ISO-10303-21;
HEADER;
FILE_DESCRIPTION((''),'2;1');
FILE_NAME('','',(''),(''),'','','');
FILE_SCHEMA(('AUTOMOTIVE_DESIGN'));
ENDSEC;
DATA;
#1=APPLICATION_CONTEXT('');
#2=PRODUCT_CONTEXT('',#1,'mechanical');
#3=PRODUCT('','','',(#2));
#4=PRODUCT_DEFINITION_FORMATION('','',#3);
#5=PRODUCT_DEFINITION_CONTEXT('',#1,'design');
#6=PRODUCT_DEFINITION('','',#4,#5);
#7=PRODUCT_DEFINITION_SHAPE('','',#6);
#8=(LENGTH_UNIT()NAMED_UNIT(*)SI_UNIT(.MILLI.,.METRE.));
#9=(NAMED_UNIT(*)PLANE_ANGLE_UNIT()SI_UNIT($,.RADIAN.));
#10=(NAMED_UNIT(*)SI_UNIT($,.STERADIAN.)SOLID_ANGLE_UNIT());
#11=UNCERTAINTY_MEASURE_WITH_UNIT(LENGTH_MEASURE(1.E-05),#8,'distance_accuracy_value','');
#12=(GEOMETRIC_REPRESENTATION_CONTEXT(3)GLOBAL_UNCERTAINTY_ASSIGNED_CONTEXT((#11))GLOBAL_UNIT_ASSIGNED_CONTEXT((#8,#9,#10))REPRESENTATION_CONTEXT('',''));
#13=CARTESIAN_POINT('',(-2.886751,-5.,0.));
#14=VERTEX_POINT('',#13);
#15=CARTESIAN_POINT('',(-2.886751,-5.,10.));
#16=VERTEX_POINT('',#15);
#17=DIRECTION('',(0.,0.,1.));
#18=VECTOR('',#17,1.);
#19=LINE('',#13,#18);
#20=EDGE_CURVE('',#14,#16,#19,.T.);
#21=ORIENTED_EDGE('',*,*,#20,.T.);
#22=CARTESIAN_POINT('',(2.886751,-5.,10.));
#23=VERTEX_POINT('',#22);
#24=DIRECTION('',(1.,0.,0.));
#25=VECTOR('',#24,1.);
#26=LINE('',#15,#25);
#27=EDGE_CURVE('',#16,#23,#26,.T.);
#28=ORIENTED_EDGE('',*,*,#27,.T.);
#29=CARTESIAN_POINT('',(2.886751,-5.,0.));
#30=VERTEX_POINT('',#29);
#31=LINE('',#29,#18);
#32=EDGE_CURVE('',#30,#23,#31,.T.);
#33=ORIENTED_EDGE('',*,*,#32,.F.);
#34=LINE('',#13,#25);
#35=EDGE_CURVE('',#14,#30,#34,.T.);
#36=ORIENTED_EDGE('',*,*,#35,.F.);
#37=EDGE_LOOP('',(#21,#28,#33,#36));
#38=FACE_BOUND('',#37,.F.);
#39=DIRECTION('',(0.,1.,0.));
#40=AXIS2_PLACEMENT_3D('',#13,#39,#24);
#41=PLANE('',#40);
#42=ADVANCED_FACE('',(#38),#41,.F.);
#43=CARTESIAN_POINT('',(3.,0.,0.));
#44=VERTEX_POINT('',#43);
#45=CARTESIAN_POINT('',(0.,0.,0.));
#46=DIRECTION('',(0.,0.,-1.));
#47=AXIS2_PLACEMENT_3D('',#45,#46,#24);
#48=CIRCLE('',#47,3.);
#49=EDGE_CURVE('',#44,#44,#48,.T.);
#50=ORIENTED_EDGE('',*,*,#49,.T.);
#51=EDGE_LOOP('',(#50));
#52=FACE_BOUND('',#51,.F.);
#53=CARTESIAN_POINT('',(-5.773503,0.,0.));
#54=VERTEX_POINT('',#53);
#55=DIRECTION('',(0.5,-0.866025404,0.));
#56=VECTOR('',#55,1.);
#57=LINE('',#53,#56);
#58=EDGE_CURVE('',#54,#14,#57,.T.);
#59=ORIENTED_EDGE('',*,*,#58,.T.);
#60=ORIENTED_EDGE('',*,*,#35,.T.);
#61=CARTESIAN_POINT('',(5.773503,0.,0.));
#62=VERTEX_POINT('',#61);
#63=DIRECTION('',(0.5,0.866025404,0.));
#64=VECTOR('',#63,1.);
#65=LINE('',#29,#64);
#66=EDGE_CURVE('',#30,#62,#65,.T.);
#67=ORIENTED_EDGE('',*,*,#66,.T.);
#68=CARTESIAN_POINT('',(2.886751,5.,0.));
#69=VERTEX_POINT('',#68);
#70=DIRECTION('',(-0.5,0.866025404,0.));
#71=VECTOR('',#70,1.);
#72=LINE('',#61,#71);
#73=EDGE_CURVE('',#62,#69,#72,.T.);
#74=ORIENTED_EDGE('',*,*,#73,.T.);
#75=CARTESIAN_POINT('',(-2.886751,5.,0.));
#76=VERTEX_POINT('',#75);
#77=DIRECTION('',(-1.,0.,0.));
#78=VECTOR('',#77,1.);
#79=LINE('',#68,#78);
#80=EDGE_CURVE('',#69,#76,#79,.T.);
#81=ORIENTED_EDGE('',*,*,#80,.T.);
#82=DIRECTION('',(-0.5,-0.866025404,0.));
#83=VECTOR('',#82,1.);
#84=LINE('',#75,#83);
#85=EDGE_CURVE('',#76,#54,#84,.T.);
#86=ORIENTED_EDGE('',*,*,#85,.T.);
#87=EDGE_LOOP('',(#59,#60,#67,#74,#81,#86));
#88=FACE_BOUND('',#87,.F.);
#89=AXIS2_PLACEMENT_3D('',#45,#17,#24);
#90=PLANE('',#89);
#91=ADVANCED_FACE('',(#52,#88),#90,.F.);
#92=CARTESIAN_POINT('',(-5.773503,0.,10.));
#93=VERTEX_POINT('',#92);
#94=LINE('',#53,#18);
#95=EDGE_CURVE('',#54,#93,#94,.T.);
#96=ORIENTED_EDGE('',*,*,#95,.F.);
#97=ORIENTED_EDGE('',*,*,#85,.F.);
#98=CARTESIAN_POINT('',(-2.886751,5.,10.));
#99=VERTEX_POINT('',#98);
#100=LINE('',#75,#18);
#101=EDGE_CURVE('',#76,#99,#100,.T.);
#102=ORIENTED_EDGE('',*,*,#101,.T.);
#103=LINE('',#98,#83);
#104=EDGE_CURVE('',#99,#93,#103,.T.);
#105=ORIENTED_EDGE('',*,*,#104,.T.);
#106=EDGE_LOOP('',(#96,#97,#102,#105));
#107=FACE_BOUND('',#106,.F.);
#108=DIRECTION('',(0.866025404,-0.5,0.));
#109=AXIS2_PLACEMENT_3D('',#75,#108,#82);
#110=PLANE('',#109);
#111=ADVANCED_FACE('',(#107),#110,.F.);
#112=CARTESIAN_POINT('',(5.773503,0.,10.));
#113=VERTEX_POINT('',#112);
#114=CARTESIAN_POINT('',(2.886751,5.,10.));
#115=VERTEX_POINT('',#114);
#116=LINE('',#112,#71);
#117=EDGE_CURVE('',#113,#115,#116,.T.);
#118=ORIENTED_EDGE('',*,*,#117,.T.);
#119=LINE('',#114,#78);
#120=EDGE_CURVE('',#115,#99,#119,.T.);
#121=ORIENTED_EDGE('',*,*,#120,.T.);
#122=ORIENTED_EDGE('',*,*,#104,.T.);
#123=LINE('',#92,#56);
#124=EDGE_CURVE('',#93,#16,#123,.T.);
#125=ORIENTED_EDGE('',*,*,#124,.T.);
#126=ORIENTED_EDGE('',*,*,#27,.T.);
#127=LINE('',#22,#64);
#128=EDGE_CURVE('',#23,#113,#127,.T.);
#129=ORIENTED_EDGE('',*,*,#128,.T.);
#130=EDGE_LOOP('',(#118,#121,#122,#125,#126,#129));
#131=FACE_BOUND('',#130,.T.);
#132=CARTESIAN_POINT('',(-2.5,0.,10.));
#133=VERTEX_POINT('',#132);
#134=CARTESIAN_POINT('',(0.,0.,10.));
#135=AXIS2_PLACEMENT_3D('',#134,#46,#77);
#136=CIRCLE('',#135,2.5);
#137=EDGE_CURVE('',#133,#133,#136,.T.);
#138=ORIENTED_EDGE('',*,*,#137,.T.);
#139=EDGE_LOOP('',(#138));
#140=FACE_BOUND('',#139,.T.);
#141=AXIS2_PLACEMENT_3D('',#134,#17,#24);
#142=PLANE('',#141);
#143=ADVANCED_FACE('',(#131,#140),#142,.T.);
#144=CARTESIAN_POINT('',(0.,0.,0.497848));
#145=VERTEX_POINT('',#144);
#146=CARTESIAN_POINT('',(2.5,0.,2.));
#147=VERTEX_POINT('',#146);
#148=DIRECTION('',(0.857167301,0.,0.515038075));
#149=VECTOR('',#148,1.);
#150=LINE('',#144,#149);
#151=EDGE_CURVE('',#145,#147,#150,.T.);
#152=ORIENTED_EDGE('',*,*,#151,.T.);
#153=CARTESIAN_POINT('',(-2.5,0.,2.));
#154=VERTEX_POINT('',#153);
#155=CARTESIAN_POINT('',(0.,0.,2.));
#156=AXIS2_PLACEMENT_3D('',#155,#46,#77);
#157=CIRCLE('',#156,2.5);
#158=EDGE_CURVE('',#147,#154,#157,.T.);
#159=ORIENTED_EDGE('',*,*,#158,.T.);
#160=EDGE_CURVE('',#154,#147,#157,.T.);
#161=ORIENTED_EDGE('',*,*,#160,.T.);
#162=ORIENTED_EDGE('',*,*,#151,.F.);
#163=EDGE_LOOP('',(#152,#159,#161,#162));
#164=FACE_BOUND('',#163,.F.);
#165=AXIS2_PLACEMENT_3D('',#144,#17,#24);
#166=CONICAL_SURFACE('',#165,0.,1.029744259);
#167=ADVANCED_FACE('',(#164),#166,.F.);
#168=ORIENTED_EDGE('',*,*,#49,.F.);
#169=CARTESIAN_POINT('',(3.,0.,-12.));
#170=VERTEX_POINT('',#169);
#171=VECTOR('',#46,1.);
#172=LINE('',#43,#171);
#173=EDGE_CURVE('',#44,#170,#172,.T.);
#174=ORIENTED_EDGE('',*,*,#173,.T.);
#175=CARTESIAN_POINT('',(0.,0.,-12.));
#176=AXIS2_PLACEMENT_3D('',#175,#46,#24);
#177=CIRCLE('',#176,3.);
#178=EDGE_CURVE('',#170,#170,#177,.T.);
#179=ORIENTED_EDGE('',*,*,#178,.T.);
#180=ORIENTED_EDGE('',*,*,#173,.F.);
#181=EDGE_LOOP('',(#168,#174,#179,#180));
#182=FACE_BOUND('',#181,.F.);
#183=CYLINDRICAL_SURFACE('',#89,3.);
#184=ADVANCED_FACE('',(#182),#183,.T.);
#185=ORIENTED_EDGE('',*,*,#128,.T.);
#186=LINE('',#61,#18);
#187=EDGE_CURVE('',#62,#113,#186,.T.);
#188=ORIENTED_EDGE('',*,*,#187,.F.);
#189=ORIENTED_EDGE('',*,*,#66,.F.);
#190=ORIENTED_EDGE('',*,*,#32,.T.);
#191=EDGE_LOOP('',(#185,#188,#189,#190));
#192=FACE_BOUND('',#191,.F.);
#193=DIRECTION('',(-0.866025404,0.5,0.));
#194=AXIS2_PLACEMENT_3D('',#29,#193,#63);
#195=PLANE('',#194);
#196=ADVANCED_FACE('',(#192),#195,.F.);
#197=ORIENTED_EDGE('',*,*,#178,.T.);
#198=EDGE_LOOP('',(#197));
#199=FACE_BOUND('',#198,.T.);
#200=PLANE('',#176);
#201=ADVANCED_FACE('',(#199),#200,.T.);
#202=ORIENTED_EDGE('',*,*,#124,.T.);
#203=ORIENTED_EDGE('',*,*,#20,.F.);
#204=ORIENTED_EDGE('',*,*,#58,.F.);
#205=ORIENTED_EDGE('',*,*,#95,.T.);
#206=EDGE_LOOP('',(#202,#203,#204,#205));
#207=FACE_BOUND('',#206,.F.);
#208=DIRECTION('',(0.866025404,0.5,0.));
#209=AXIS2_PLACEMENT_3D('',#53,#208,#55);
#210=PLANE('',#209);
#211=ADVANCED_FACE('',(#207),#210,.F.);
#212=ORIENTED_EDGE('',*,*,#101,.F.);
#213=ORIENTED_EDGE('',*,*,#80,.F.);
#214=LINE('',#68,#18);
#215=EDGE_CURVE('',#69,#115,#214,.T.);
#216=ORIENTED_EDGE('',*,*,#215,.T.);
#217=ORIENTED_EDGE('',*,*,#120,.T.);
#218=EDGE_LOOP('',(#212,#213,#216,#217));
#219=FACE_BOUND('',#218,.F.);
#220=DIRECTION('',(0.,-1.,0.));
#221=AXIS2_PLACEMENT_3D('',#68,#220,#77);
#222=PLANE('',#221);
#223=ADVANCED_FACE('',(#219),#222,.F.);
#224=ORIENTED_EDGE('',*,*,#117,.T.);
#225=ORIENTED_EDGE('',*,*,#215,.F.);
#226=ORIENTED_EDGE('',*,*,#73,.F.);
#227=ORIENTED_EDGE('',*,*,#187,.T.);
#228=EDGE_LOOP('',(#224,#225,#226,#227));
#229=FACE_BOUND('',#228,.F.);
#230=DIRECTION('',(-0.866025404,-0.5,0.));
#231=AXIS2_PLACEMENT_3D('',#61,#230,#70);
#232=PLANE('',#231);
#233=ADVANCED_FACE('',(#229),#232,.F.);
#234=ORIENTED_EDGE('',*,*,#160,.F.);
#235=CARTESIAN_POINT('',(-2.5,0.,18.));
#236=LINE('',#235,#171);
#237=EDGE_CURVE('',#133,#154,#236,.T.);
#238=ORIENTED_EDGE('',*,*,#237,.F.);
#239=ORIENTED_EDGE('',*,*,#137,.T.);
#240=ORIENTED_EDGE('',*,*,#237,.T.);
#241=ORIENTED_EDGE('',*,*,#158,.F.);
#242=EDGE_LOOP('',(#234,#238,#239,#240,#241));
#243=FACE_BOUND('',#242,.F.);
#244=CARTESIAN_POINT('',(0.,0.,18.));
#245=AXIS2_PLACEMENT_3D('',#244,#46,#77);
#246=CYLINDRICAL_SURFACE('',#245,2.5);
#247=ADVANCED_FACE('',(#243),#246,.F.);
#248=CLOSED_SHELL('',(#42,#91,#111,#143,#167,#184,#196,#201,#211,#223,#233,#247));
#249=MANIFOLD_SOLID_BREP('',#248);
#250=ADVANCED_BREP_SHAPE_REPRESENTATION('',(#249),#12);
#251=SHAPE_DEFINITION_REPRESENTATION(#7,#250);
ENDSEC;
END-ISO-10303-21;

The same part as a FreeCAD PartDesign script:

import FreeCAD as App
import Part
import Sketcher
Q = App.Units.Quantity


def add_polygon(sketch, points):
    """Adds a closed chain of lines whose ends are joined by coincident constraints."""
    first, n = sketch.GeometryCount, len(points)
    for a, b in zip(points, points[1:] + points[:1]):
        sketch.addGeometry(Part.LineSegment(App.Vector(*a, 0), App.Vector(*b, 0)), False)
    for i in range(n):
        sketch.addConstraint(Sketcher.Constraint("Coincident", first + i, 2, first + (i + 1) % n, 1))

doc = App.newDocument("Part")
body = doc.addObject("PartDesign::Body", "Body")

sketch1 = body.newObject("Sketcher::SketchObject", "Sketch")
sketch1.AttachmentSupport = (doc.getObject("XY_Plane"), [""])
sketch1.MapMode = "FlatFace"
add_polygon(sketch1, [(3, 5), (-3, 5), (-6, 0), (-3, -5), (3, -5), (6, 0)])
sketch1.addConstraint(Sketcher.Constraint("Horizontal", 0))
sketch1.addConstraint(Sketcher.Constraint("Horizontal", 3))
sketch1.addConstraint(Sketcher.Constraint("Symmetric", 0, 2, 3, 2, -1, 1))
sketch1.addConstraint(Sketcher.Constraint("Symmetric", 1, 2, 4, 2, -1, 1))
sketch1.addConstraint(Sketcher.Constraint("PointOnObject", 1, 2, -1))
sketch1.addConstraint(Sketcher.Constraint("Parallel", 2, 5))
sketch1.addConstraint(Sketcher.Constraint("Vertical", 0, 2, 2, 2))
sketch1.addConstraint(Sketcher.Constraint("Angle", 1, Q("-120 deg")))
sketch1.addConstraint(Sketcher.Constraint("DistanceY", -1, 1, 0, 2, Q("5 mm")))
sketch1.addConstraint(Sketcher.Constraint("DistanceX", 0, 2, 0, 1, Q("5.773503 mm")))
pad1 = body.newObject("PartDesign::Pad", "Pad")
pad1.Profile = sketch1
pad1.Length = 10

sketch2 = body.newObject("Sketcher::SketchObject", "Sketch001")
sketch2.AttachmentSupport = (doc.getObject("XY_Plane"), [""])
sketch2.MapMode = "FlatFace"
sketch2.AttachmentOffset = App.Placement(App.Vector(0, 0, 10), App.Rotation())
sketch2.addGeometry(Part.Circle(App.Vector(0, 0, 0), App.Vector(0, 0, 1), 2.5), False)
sketch2.addConstraint(Sketcher.Constraint("Coincident", 0, 3, -1, 1))
sketch2.addConstraint(Sketcher.Constraint("Diameter", 0, Q("5 mm")))
doc.recompute()
hole = body.newObject("PartDesign::Hole", "Hole")
hole.Profile = sketch2
hole.ThreadType = "None"
hole.Diameter = 5
hole.DepthType = "Dimension"
hole.Depth = 8
hole.DrillPoint = "Angled"
hole.DrillPointAngle = 118

sketch3 = body.newObject("Sketcher::SketchObject", "Sketch002")
sketch3.AttachmentSupport = (doc.getObject("XY_Plane"), [""])
sketch3.MapMode = "FlatFace"
sketch3.addGeometry(Part.Circle(App.Vector(0, 0, 0), App.Vector(0, 0, 1), 3), False)
sketch3.addConstraint(Sketcher.Constraint("Coincident", 0, 3, -1, 1))
sketch3.addConstraint(Sketcher.Constraint("Diameter", 0, Q("6 mm")))
pad2 = body.newObject("PartDesign::Pad", "Pad001")
pad2.Profile = sketch3
pad2.Length = 12
pad2.Reversed = True

doc.recompute()
